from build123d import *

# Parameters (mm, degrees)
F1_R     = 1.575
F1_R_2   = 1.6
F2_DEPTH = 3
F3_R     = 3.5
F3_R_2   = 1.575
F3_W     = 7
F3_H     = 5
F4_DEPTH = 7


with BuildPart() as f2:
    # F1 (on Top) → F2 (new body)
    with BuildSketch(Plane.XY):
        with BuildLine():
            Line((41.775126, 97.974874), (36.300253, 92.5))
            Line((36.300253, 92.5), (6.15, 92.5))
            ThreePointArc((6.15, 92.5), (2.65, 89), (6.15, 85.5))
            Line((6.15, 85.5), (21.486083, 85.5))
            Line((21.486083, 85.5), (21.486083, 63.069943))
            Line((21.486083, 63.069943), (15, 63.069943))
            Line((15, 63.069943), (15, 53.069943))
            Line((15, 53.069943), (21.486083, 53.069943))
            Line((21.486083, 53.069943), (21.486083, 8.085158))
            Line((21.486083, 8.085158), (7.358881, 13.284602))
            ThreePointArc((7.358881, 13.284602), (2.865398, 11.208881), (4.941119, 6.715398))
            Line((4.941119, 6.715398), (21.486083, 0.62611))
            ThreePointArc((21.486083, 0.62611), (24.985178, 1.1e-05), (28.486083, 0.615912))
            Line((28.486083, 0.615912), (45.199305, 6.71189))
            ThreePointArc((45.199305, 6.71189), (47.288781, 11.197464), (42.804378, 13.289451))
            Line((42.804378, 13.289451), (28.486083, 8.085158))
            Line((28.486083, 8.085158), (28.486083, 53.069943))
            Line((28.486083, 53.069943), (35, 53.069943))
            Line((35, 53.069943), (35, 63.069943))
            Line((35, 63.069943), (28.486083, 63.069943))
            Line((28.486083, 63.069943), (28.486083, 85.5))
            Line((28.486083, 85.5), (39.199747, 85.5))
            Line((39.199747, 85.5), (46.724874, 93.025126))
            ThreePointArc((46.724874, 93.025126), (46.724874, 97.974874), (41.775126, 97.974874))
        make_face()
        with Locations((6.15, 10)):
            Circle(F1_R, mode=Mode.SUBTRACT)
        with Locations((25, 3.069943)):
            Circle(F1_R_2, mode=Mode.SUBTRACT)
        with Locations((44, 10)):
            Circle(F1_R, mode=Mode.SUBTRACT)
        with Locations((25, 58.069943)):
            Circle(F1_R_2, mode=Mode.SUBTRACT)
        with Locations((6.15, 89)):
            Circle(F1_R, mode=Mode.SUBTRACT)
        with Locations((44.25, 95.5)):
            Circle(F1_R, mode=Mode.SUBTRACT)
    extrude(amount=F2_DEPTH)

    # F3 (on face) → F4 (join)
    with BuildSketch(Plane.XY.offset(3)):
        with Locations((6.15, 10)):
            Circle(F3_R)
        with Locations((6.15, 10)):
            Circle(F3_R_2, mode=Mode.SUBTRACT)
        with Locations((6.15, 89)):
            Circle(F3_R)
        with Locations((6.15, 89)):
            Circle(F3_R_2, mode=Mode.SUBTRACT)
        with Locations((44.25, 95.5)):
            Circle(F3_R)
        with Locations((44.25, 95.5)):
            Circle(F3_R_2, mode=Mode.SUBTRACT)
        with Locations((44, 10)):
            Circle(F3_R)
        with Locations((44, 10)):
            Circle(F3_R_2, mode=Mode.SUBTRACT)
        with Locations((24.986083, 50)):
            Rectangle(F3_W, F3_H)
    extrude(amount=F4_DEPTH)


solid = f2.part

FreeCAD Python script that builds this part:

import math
import FreeCAD as App
import Part
import Sketcher
Q = App.Units.Quantity

doc = App.newDocument("Part")
body = doc.addObject("PartDesign::Body", "Body")

# Sketch on XY plane
sketch1 = body.newObject("Sketcher::SketchObject", "Sketch")
sketch1.AttachmentSupport = (doc.getObject("XY_Plane"), [""])
sketch1.MapMode = "FlatFace"
sketch1.addGeometry([
    Part.LineSegment(App.Vector(41.8, 98, 0), App.Vector(36.3, 92.5, 0)),  # 0
    Part.LineSegment(App.Vector(36.3, 92.5, 0), App.Vector(6.2, 92.5, 0)),  # 1
    Part.ArcOfCircle(Part.Circle(App.Vector(6.2, 89, 0), App.Vector(0, 0, 1), 3.5), math.radians(90), math.radians(270)),  # 2
    Part.LineSegment(App.Vector(6.2, 85.5, 0), App.Vector(21.5, 85.5, 0)),  # 3
    Part.LineSegment(App.Vector(21.5, 85.5, 0), App.Vector(21.5, 63.1, 0)),  # 4
    Part.LineSegment(App.Vector(21.5, 63.1, 0), App.Vector(15, 63.1, 0)),  # 5
    Part.LineSegment(App.Vector(15, 63.1, 0), App.Vector(15, 53.1, 0)),  # 6
    Part.LineSegment(App.Vector(15, 53.1, 0), App.Vector(21.5, 53.1, 0)),  # 7
    Part.LineSegment(App.Vector(21.5, 53.1, 0), App.Vector(21.5, 8.1, 0)),  # 8
    Part.LineSegment(App.Vector(21.5, 8.1, 0), App.Vector(7.4, 13.3, 0)),  # 9
    Part.ArcOfCircle(Part.Circle(App.Vector(6.2, 10, 0), App.Vector(0, 0, 1), 3.5), math.radians(70), math.radians(250)),  # 10
    Part.LineSegment(App.Vector(4.9, 6.7, 0), App.Vector(21.5, 0.6, 0)),  # 11
    Part.ArcOfCircle(Part.Circle(App.Vector(25, 10.2, 0), App.Vector(0, 0, 1), 10.2), math.radians(-110), math.radians(-70)),  # 12
    Part.LineSegment(App.Vector(28.5, 0.6, 0), App.Vector(45.2, 6.7, 0)),  # 13
    Part.ArcOfCircle(Part.Circle(App.Vector(44, 10, 0), App.Vector(0, 0, 1), 3.5), math.radians(-70), math.radians(110)),  # 14
    Part.LineSegment(App.Vector(42.8, 13.3, 0), App.Vector(28.5, 8.1, 0)),  # 15
    Part.LineSegment(App.Vector(28.5, 8.1, 0), App.Vector(28.5, 53.1, 0)),  # 16
    Part.LineSegment(App.Vector(28.5, 53.1, 0), App.Vector(35, 53.1, 0)),  # 17
    Part.LineSegment(App.Vector(35, 53.1, 0), App.Vector(35, 63.1, 0)),  # 18
    Part.LineSegment(App.Vector(35, 63.1, 0), App.Vector(28.5, 63.1, 0)),  # 19
    Part.LineSegment(App.Vector(28.5, 63.1, 0), App.Vector(28.5, 85.5, 0)),  # 20
    Part.LineSegment(App.Vector(28.5, 85.5, 0), App.Vector(39.2, 85.5, 0)),  # 21
    Part.LineSegment(App.Vector(39.2, 85.5, 0), App.Vector(46.7, 93, 0)),  # 22
    Part.ArcOfCircle(Part.Circle(App.Vector(44.2, 95.5, 0), App.Vector(0, 0, 1), 3.5), math.radians(-45), math.radians(135)),  # 23
    Part.Circle(App.Vector(6.2, 10, 0), App.Vector(0, 0, 1), 1.6),  # 24
    Part.Circle(App.Vector(25, 3.1, 0), App.Vector(0, 0, 1), 1.6),  # 25
    Part.Circle(App.Vector(44, 10, 0), App.Vector(0, 0, 1), 1.6),  # 26
    Part.Circle(App.Vector(25, 58.1, 0), App.Vector(0, 0, 1), 1.6),  # 27
    Part.Circle(App.Vector(6.2, 89, 0), App.Vector(0, 0, 1), 1.6),  # 28
    Part.Circle(App.Vector(44.2, 95.5, 0), App.Vector(0, 0, 1), 1.6),  # 29
], False)
sketch1.addConstraint([
    Sketcher.Constraint("Coincident", 0, 2, 1, 1),
    Sketcher.Constraint("Tangent", 1, 2, 2, 1),
    Sketcher.Constraint("Tangent", 2, 2, 3, 1),
    Sketcher.Constraint("Coincident", 3, 2, 4, 1),
    Sketcher.Constraint("Coincident", 4, 2, 5, 1),
    Sketcher.Constraint("Coincident", 5, 2, 6, 1),
    Sketcher.Constraint("Coincident", 6, 2, 7, 1),
    Sketcher.Constraint("Coincident", 7, 2, 8, 1),
    Sketcher.Constraint("Coincident", 8, 2, 9, 1),
    Sketcher.Constraint("Tangent", 9, 2, 10, 1),
    Sketcher.Constraint("Tangent", 10, 2, 11, 1),
    Sketcher.Constraint("Tangent", 11, 2, 12, 1),
    Sketcher.Constraint("Tangent", 12, 2, 13, 1),
    Sketcher.Constraint("Tangent", 13, 2, 14, 1),
    Sketcher.Constraint("Tangent", 14, 2, 15, 1),
    Sketcher.Constraint("Coincident", 15, 2, 16, 1),
    Sketcher.Constraint("Coincident", 16, 2, 17, 1),
    Sketcher.Constraint("Coincident", 17, 2, 18, 1),
    Sketcher.Constraint("Coincident", 18, 2, 19, 1),
    Sketcher.Constraint("Coincident", 19, 2, 20, 1),
    Sketcher.Constraint("Coincident", 20, 2, 21, 1),
    Sketcher.Constraint("Coincident", 21, 2, 22, 1),
    Sketcher.Constraint("Tangent", 22, 2, 23, 1),
    Sketcher.Constraint("Tangent", 23, 2, 0, 1),
    Sketcher.Constraint("Horizontal", 1),
    Sketcher.Constraint("Horizontal", 3),
    Sketcher.Constraint("Vertical", 4),
    Sketcher.Constraint("Horizontal", 5),
    Sketcher.Constraint("Vertical", 6),
    Sketcher.Constraint("Horizontal", 7),
    Sketcher.Constraint("Vertical", 8),
    Sketcher.Constraint("Vertical", 16),
    Sketcher.Constraint("Horizontal", 17),
    Sketcher.Constraint("Vertical", 18),
    Sketcher.Constraint("Horizontal", 19),
    Sketcher.Constraint("Vertical", 20),
    Sketcher.Constraint("Horizontal", 21),
    Sketcher.Constraint("Coincident", 24, 3, 10, 3),
    Sketcher.Constraint("Coincident", 26, 3, 14, 3),
    Sketcher.Constraint("Coincident", 28, 3, 2, 3),
    Sketcher.Constraint("Coincident", 29, 3, 23, 3),
    Sketcher.Constraint("Equal", 2, 10),
    Sketcher.Constraint("Equal", 10, 14),
    Sketcher.Constraint("Equal", 14, 23),
    Sketcher.Constraint("Equal", 24, 26),
    Sketcher.Constraint("Equal", 25, 27),
    Sketcher.Constraint("Equal", 26, 28),
    Sketcher.Constraint("Equal", 28, 29),
    Sketcher.Constraint("Parallel", 9, 11),
    Sketcher.Constraint("Parallel", 0, 22),
    Sketcher.Constraint("Horizontal", 10, 3, 14, 3),
    Sketcher.Constraint("Horizontal", 8, 2, 15, 2),
    Sketcher.Constraint("Horizontal", 7, 2, 16, 2),
    Sketcher.Constraint("Horizontal", 5, 2, 18, 2),
    Sketcher.Constraint("Horizontal", 3, 2, 20, 2),
    Sketcher.Constraint("Vertical", 2, 3, 10, 3),
    Sketcher.Constraint("Vertical", 12, 3, 25, 3),
    Sketcher.Constraint("Vertical", 25, 3, 27, 3),
    Sketcher.Constraint("Vertical", 4, 2, 7, 2),
    Sketcher.Constraint("Vertical", 8, 2, 11, 2),
    Sketcher.Constraint("Vertical", 12, 2, 15, 2),
    Sketcher.Constraint("Vertical", 16, 2, 19, 2),
    Sketcher.Constraint("Diameter", 25, 3.2),
    Sketcher.Constraint("Radius", 2, 3.5),
    Sketcher.Constraint("Diameter", 24, 3.15),
    Sketcher.Constraint("DistanceY", 6, 2, 6, 1, 10.0),
    Sketcher.Constraint("Angle", 0, Q("-134.999995 deg")),
    Sketcher.Constraint("DistanceY", -1, 1, 2, 3, 89.0),
    Sketcher.Constraint("DistanceY", -1, 1, 10, 3, 10.0),
    Sketcher.Constraint("DistanceX", -1, 1, 12, 3, 25.0),
    Sketcher.Constraint("DistanceX", -1, 1, 14, 3, 44.0),
    Sketcher.Constraint("DistanceX", -1, 1, 5, 2, 15.0),
    Sketcher.Constraint("DistanceX", -1, 1, 17, 2, 35.0),
    Sketcher.Constraint("DistanceY", 0, 2, 23, 3, 3.0),
    Sketcher.Constraint("DistanceY", 27, 3, 4, 2, 5.0),
    Sketcher.Constraint("DistanceX", 11, 2, 12, 2, 7.0),
    Sketcher.Constraint("DistanceX", 2, 3, 23, 3, 38.1),
    Sketcher.Constraint("DistanceX", -1, 1, 2, 3, 6.15),
    Sketcher.Constraint("Radius", 12, 10.173635),
    Sketcher.Constraint("DistanceY", 4, 2, 4, 1, 22.430057),
    Sketcher.Constraint("DistanceY", 25, 3, 12, 3, 7.103692),
])
pad1 = body.newObject("PartDesign::Pad", "Pad")
pad1.Profile = sketch1
pad1.Length = 3

# Sketch on XY plane
sketch2 = body.newObject("Sketcher::SketchObject", "Sketch001")
sketch2.AttachmentSupport = (doc.getObject("XY_Plane"), [""])
sketch2.MapMode = "FlatFace"
sketch2.AttachmentOffset = App.Placement(App.Vector(0, 0, 3), App.Rotation())
sketch2.addGeometry([
    Part.Circle(App.Vector(6.2, 10, 0), App.Vector(0, 0, 1), 3.5),  # 0
    Part.Circle(App.Vector(6.2, 10, 0), App.Vector(0, 0, 1), 1.6),  # 1
    Part.Circle(App.Vector(6.2, 89, 0), App.Vector(0, 0, 1), 3.5),  # 2
    Part.Circle(App.Vector(6.2, 89, 0), App.Vector(0, 0, 1), 1.6),  # 3
    Part.Circle(App.Vector(44.2, 95.5, 0), App.Vector(0, 0, 1), 3.5),  # 4
    Part.Circle(App.Vector(44.2, 95.5, 0), App.Vector(0, 0, 1), 1.6),  # 5
    Part.Circle(App.Vector(44, 10, 0), App.Vector(0, 0, 1), 3.5),  # 6
    Part.Circle(App.Vector(44, 10, 0), App.Vector(0, 0, 1), 1.6),  # 7
    Part.LineSegment(App.Vector(21.5, 52.5, 0), App.Vector(21.5, 47.5, 0)),  # 8
    Part.LineSegment(App.Vector(21.5, 47.5, 0), App.Vector(28.5, 47.5, 0)),  # 9
    Part.LineSegment(App.Vector(28.5, 47.5, 0), App.Vector(28.5, 52.5, 0)),  # 10
    Part.LineSegment(App.Vector(28.5, 52.5, 0), App.Vector(21.5, 52.5, 0)),  # 11
], False)
sketch2.addConstraint([
    Sketcher.Constraint("Coincident", 8, 2, 9, 1),
    Sketcher.Constraint("Coincident", 9, 2, 10, 1),
    Sketcher.Constraint("Coincident", 10, 2, 11, 1),
    Sketcher.Constraint("Coincident", 11, 2, 8, 1),
    Sketcher.Constraint("Vertical", 8),
    Sketcher.Constraint("Horizontal", 9),
    Sketcher.Constraint("Vertical", 10),
    Sketcher.Constraint("Horizontal", 11),
    Sketcher.Constraint("Coincident", 1, 3, 0, 3),
    Sketcher.Constraint("Coincident", 3, 3, 2, 3),
    Sketcher.Constraint("Coincident", 5, 3, 4, 3),
    Sketcher.Constraint("Coincident", 7, 3, 6, 3),
    Sketcher.Constraint("Equal", 0, 2),
    Sketcher.Constraint("Equal", 1, 3),
    Sketcher.Constraint("Equal", 2, 4),
    Sketcher.Constraint("Equal", 3, 5),
    Sketcher.Constraint("Equal", 4, 6),
    Sketcher.Constraint("Equal", 5, 7),
    Sketcher.Constraint("Horizontal", 1, 3, 6, 3),
    Sketcher.Constraint("Vertical", 1, 3, 2, 3),
    Sketcher.Constraint("Diameter", 0, 7.0),
    Sketcher.Constraint("Diameter", 1, 3.15),
    Sketcher.Constraint("DistanceX", 9, 1, 9, 2, 7.0),
    Sketcher.Constraint("DistanceY", 8, 2, 8, 1, 5.0),
    Sketcher.Constraint("DistanceY", -1, 1, 0, 3, 10.0),
    Sketcher.Constraint("DistanceY", -1, 1, 2, 3, 89.0),
    Sketcher.Constraint("DistanceX", -1, 1, 6, 3, 44.0),
    Sketcher.Constraint("DistanceY", -1, 1, 4, 3, 95.5),
    Sketcher.Constraint("DistanceY", -1, 1, 8, 2, 47.5),
    Sketcher.Constraint("DistanceX", 2, 3, 4, 3, 38.1),
    Sketcher.Constraint("DistanceX", -1, 1, 0, 3, 6.15),
    Sketcher.Constraint("DistanceX", -1, 1, 8, 2, 21.486083),
])
pad2 = body.newObject("PartDesign::Pad", "Pad001")
pad2.Profile = sketch2
pad2.Length = 7

doc.recompute()
